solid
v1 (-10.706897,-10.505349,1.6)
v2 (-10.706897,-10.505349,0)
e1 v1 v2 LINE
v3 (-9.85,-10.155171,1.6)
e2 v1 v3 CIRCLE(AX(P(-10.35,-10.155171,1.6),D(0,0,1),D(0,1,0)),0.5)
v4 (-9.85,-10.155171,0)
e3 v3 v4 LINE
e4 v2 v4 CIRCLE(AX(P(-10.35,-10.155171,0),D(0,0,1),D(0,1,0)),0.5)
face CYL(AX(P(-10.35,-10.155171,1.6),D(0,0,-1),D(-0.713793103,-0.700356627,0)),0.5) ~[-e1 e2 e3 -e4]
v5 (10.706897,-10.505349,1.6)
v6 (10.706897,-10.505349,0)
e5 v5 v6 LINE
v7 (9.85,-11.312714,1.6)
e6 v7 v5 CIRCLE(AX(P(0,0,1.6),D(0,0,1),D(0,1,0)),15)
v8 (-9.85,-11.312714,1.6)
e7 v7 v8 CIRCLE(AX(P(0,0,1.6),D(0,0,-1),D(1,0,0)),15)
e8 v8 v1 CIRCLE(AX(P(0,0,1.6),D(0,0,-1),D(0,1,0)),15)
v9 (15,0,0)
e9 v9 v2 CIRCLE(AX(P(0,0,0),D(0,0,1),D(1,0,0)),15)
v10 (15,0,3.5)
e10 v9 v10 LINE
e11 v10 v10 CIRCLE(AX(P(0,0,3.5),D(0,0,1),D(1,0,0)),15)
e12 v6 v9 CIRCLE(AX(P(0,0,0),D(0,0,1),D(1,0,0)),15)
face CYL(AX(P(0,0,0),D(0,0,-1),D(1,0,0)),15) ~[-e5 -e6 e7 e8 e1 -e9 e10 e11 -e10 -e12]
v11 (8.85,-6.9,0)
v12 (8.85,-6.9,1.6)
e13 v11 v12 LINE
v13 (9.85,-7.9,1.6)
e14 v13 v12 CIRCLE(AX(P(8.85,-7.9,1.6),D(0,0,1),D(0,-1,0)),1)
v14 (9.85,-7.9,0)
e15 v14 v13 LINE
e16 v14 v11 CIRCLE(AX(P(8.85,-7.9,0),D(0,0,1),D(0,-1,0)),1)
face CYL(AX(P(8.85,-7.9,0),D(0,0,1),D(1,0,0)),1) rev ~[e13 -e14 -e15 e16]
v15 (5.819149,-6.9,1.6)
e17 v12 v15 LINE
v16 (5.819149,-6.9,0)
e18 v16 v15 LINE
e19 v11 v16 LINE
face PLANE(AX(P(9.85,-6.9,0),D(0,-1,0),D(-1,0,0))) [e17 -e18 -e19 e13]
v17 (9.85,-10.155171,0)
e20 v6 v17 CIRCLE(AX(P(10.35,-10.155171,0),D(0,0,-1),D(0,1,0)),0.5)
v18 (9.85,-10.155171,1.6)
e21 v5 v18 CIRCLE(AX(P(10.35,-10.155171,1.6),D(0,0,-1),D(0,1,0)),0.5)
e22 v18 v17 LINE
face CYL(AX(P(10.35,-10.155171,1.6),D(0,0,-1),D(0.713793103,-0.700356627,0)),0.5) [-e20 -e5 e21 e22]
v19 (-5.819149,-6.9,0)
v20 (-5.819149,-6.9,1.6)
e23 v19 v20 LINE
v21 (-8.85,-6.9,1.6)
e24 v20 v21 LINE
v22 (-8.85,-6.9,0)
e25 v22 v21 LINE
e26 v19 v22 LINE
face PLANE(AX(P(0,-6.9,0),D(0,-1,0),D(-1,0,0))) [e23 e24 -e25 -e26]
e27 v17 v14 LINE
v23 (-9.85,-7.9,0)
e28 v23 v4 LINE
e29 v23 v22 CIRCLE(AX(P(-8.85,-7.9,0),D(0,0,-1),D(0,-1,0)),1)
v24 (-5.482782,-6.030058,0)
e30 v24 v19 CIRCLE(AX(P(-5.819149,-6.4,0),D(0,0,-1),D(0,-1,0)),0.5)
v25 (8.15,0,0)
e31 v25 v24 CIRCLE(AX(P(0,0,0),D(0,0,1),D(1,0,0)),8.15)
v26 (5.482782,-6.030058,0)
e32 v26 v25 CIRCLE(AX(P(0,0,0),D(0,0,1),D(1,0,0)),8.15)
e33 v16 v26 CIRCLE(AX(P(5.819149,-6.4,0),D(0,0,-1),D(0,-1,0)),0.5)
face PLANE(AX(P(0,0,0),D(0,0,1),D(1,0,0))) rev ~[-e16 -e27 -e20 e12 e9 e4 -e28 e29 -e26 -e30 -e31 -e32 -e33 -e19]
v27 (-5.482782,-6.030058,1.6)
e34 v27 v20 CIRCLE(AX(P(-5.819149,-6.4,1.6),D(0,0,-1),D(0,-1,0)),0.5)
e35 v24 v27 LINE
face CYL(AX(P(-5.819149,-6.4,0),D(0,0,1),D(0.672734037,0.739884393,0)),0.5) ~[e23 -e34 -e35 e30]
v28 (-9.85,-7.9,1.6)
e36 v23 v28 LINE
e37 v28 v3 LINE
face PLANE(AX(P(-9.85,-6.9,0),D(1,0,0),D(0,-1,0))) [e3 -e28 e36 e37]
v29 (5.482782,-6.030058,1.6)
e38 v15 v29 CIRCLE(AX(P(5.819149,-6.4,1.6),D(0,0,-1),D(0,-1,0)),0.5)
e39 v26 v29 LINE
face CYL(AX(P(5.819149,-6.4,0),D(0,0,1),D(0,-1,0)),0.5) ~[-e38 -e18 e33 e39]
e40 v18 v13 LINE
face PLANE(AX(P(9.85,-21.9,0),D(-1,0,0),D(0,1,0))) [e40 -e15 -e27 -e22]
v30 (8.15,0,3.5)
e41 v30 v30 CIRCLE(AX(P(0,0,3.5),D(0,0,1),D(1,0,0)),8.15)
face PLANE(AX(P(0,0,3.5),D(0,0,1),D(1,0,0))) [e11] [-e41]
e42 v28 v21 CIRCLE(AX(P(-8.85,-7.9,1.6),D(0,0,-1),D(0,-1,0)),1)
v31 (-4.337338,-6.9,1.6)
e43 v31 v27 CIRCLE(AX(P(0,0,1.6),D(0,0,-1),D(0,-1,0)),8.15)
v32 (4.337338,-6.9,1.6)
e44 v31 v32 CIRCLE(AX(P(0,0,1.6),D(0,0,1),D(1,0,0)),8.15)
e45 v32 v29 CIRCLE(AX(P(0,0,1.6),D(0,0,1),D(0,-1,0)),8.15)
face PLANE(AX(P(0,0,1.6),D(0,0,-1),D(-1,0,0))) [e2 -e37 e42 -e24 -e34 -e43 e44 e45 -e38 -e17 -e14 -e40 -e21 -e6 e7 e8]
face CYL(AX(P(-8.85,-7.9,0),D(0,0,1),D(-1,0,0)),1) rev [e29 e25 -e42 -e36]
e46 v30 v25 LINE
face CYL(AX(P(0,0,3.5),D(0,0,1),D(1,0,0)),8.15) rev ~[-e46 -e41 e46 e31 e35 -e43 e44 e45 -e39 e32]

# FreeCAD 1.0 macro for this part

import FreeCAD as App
import Part
import Sketcher
from FreeCAD import Vector
Q = App.Units.Quantity


def edges_at(feature, points):
    """Names of the edges that pass closest to the given points."""
    edges = feature.Shape.Edges
    near = lambda p: min(range(len(edges)), key=lambda i: edges[i].distToShape(Part.Vertex(*p))[0])
    return sorted({f"Edge{near(p) + 1}" for p in points})


def add_polygon(sketch, points):
    """Adds a closed chain of lines whose ends are joined by coincident constraints."""
    first, n = sketch.GeometryCount, len(points)
    for a, b in zip(points, points[1:] + points[:1]):
        sketch.addGeometry(Part.LineSegment(App.Vector(*a, 0), App.Vector(*b, 0)), False)
    for i in range(n):
        sketch.addConstraint(Sketcher.Constraint("Coincident", first + i, 2, first + (i + 1) % n, 1))

doc = App.newDocument("Part")
body = doc.addObject("PartDesign::Body", "Body")

# Sketch on XY plane
sketch1 = body.newObject("Sketcher::SketchObject", "Sketch")
sketch1.AttachmentSupport = (doc.getObject("XY_Plane"), [""])
sketch1.MapMode = "FlatFace"
sketch1.addGeometry(Part.Circle(Vector(0, 0, 0), Vector(0, 0, 1), 15), False)
sketch1.addConstraint([
    Sketcher.Constraint("Coincident", 0, 3, -1, 1),
    Sketcher.Constraint("Diameter", 0, Q("30 mm")),
])
pad1 = body.newObject("PartDesign::Pad", "Pad")
pad1.Profile = sketch1
pad1.Length = 3.5

# Sketch on XY plane
sketch2 = body.newObject("Sketcher::SketchObject", "Sketch001")
sketch2.AttachmentSupport = (doc.getObject("XY_Plane"), [""])
sketch2.MapMode = "FlatFace"
sketch2.AttachmentOffset = App.Placement(Vector(0, 0, 3.5), App.Rotation())
sketch2.addGeometry(Part.Circle(Vector(0, 0, 0), Vector(0, 0, 1), 4.05), False)
sketch2.addConstraint([
    Sketcher.Constraint("Coincident", 0, 3, -1, 1),
    Sketcher.Constraint("Diameter", 0, Q("8.1 mm")),
])
pocket1 = body.newObject("PartDesign::Pocket", "Pocket")
pocket1.Profile = sketch2
pocket1.Type = "ThroughAll"

# Sketch on XY plane
sketch3 = body.newObject("Sketcher::SketchObject", "Sketch002")
sketch3.AttachmentSupport = (doc.getObject("XY_Plane"), [""])
sketch3.MapMode = "FlatFace"
sketch3.AttachmentOffset = App.Placement(Vector(0, 0, 3.5), App.Rotation())
sketch3.addGeometry(Part.Circle(Vector(0, 0, 0), Vector(0, 0, 1), 8.15), False)
sketch3.addConstraint([
    Sketcher.Constraint("Coincident", 0, 3, -1, 1),
    Sketcher.Constraint("Diameter", 0, Q("16.3 mm")),
])
pocket2 = body.newObject("PartDesign::Pocket", "Pocket001")
pocket2.Profile = sketch3
pocket2.Type = "ThroughAll"

# Sketch on XY plane
sketch4 = body.newObject("Sketcher::SketchObject", "Sketch003")
sketch4.AttachmentSupport = (doc.getObject("XY_Plane"), [""])
sketch4.MapMode = "FlatFace"
add_polygon(sketch4, [(-9.85, -6.9), (9.85, -6.9), (9.85, -21.9), (-9.85, -21.9)])  # lines 0-3
sketch4.addConstraint([
    Sketcher.Constraint("Horizontal", 0),
    Sketcher.Constraint("Vertical", 1),
    Sketcher.Constraint("Horizontal", 2),
    Sketcher.Constraint("Vertical", 3),
    Sketcher.Constraint("DistanceY", 1, 2, 1, 1, Q("15 mm")),
    Sketcher.Constraint("DistanceX", 0, 1, 0, 2, Q("19.7 mm")),
    Sketcher.Constraint("DistanceY", 0, 2, -1, 1, Q("6.9 mm")),
    Sketcher.Constraint("DistanceX", -1, 1, 0, 2, Q("9.85 mm")),
])
pocket3 = body.newObject("PartDesign::Pocket", "Pocket002")
pocket3.Profile = sketch4
pocket3.Length = 1.6
pocket3.Reversed = True
doc.recompute()

fillet = body.newObject("PartDesign::Fillet", "Fillet")
fillet.Base = (pocket3, edges_at(pocket3, [
    (4.337, -6.9, 0.8),
    (-4.337, -6.9, 0.8),
    (9.85, -11.313, 0.8),
    (-9.85, -11.313, 0.8),
]))
fillet.Radius = 0.5
doc.recompute()

fillet2 = body.newObject("PartDesign::Fillet", "Fillet001")
fillet2.Base = (fillet, edges_at(fillet, [(-9.85, -6.9, 0.8), (9.85, -6.9, 0.8)]))
fillet2.Radius = 1

doc.recompute()
